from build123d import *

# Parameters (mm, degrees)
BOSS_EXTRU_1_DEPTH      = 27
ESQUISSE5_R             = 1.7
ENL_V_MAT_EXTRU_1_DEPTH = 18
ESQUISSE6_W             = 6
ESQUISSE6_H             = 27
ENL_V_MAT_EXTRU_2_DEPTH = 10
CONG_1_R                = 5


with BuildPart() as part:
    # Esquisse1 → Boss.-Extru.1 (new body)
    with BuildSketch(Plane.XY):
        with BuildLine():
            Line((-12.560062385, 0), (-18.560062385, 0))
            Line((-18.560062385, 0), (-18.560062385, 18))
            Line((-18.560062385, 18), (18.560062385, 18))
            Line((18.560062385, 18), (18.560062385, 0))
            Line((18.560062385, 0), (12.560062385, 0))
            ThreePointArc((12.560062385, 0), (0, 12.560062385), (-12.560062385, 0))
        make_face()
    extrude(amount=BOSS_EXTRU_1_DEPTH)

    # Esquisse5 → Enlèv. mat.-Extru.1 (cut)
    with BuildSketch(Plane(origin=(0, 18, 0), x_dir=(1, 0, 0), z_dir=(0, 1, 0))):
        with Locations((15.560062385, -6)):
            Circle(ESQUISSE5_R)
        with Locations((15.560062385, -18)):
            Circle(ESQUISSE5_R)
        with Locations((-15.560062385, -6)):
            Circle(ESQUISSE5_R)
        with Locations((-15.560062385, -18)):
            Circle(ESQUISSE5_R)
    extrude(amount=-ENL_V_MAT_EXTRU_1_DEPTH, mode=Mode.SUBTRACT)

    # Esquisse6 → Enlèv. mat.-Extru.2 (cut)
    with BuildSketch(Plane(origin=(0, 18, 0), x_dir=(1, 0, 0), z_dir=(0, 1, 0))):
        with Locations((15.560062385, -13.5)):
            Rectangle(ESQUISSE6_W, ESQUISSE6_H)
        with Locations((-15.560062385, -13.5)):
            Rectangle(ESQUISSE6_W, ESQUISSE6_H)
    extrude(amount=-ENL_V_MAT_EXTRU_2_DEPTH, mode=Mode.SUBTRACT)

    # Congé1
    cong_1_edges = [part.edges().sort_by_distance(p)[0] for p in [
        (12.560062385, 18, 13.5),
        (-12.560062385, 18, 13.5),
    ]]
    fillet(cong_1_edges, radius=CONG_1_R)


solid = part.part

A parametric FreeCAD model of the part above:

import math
import FreeCAD as App
import Part
import Sketcher
from FreeCAD import Vector


def edges_at(feature, points):
    """Names of the edges that pass closest to the given points."""
    edges = feature.Shape.Edges
    near = lambda p: min(range(len(edges)), key=lambda i: edges[i].distToShape(Part.Vertex(*p))[0])
    return sorted({f"Edge{near(p) + 1}" for p in points})

doc = App.newDocument("Part")
body = doc.addObject("PartDesign::Body", "Body")

# Sketch on XY plane
sketch1 = body.newObject("Sketcher::SketchObject", "Sketch")
sketch1.AttachmentSupport = (doc.getObject("XY_Plane"), [""])
sketch1.MapMode = "FlatFace"
sketch1.addGeometry([
    Part.LineSegment(Vector(-18.560062, 0, 0), Vector(-12.560062, 0, 0)),  # 0
    Part.ArcOfCircle(Part.Circle(Vector(0, 0, 0), Vector(0, 0, 1), 12.560062), math.radians(0), math.radians(180)),  # 1
    Part.LineSegment(Vector(12.560062, 0, 0), Vector(18.560062, 0, 0)),  # 2
    Part.LineSegment(Vector(18.560062, 0, 0), Vector(18.560062, 18, 0)),  # 3
    Part.LineSegment(Vector(18.560062, 18, 0), Vector(-18.560062, 18, 0)),  # 4
    Part.LineSegment(Vector(-18.560062, 18, 0), Vector(-18.560062, 0, 0)),  # 5
], False)
sketch1.addConstraint([
    Sketcher.Constraint("Coincident", 0, 2, 1, 2),
    Sketcher.Constraint("Coincident", 1, 1, 2, 1),
    Sketcher.Constraint("Coincident", 2, 2, 3, 1),
    Sketcher.Constraint("Coincident", 3, 2, 4, 1),
    Sketcher.Constraint("Coincident", 4, 2, 5, 1),
    Sketcher.Constraint("Coincident", 5, 2, 0, 1),
    Sketcher.Constraint("Horizontal", 0),
    Sketcher.Constraint("Horizontal", 2),
    Sketcher.Constraint("Vertical", 3),
    Sketcher.Constraint("Horizontal", 4),
    Sketcher.Constraint("Vertical", 5),
    Sketcher.Constraint("Coincident", 1, 3, -1, 1),
    Sketcher.Constraint("Symmetric", 2, 2, 5, 2, -1, 1),
    Sketcher.Constraint("PointOnObject", 0, 2, -1),
    Sketcher.Constraint("DistanceX", 0, 1, 0, 2, 6.0),
    Sketcher.Constraint("DistanceY", 3, 1, 3, 2, 18.0),
    Sketcher.Constraint("Radius", 1, 12.560062),
])
pad1 = body.newObject("PartDesign::Pad", "Pad")
pad1.Profile = sketch1
pad1.Length = 27

# Sketch on XZ plane
sketch2 = body.newObject("Sketcher::SketchObject", "Sketch001")
sketch2.AttachmentSupport = (doc.getObject("XZ_Plane"), [""])
sketch2.MapMode = "FlatFace"
sketch2.AttachmentOffset = App.Placement(Vector(0, 0, -18), App.Rotation())
sketch2.addGeometry([
    Part.Circle(Vector(15.560062, 6, 0), Vector(0, 0, 1), 1.7),
    Part.Circle(Vector(15.560062, 18, 0), Vector(0, 0, 1), 1.7),
    Part.Circle(Vector(-15.560062, 6, 0), Vector(0, 0, 1), 1.7),
    Part.Circle(Vector(-15.560062, 18, 0), Vector(0, 0, 1), 1.7),
], False)
sketch2.addConstraint([
    Sketcher.Constraint("Equal", 0, 1),
    Sketcher.Constraint("Equal", 1, 2),
    Sketcher.Constraint("Equal", 2, 3),
    Sketcher.Constraint("Symmetric", 0, 3, 2, 3, -2),
    Sketcher.Constraint("Symmetric", 1, 3, 3, 3, -2),
    Sketcher.Constraint("Vertical", 0, 3, 1, 3),
    Sketcher.Constraint("Diameter", 0, 3.4),
    Sketcher.Constraint("DistanceY", -1, 1, 0, 3, 6.0),
    Sketcher.Constraint("DistanceY", -1, 1, 1, 3, 18.0),
    Sketcher.Constraint("DistanceX", -1, 1, 0, 3, 15.560062),
])
pocket1 = body.newObject("PartDesign::Pocket", "Pocket")
pocket1.Profile = sketch2
pocket1.Length = 18
pocket1.Reversed = True

# Sketch on XZ plane
sketch3 = body.newObject("Sketcher::SketchObject", "Sketch002")
sketch3.AttachmentSupport = (doc.getObject("XZ_Plane"), [""])
sketch3.MapMode = "FlatFace"
sketch3.AttachmentOffset = App.Placement(Vector(0, 0, -18), App.Rotation())
sketch3.addGeometry([
    Part.LineSegment(Vector(12.560062, 0, 0), Vector(12.560062, 27, 0)),  # 0
    Part.LineSegment(Vector(12.560062, 27, 0), Vector(18.560062, 27, 0)),  # 1
    Part.LineSegment(Vector(18.560062, 27, 0), Vector(18.560062, 0, 0)),  # 2
    Part.LineSegment(Vector(18.560062, 0, 0), Vector(12.560062, 0, 0)),  # 3
    Part.LineSegment(Vector(-18.560062, 0, 0), Vector(-18.560062, 27, 0)),  # 4
    Part.LineSegment(Vector(-18.560062, 27, 0), Vector(-12.560062, 27, 0)),  # 5
    Part.LineSegment(Vector(-12.560062, 27, 0), Vector(-12.560062, 0, 0)),  # 6
    Part.LineSegment(Vector(-12.560062, 0, 0), Vector(-18.560062, 0, 0)),  # 7
], False)
sketch3.addConstraint([
    Sketcher.Constraint("Coincident", 0, 2, 1, 1),
    Sketcher.Constraint("Coincident", 1, 2, 2, 1),
    Sketcher.Constraint("Coincident", 2, 2, 3, 1),
    Sketcher.Constraint("Coincident", 3, 2, 0, 1),
    Sketcher.Constraint("Coincident", 4, 2, 5, 1),
    Sketcher.Constraint("Coincident", 5, 2, 6, 1),
    Sketcher.Constraint("Coincident", 6, 2, 7, 1),
    Sketcher.Constraint("Coincident", 7, 2, 4, 1),
    Sketcher.Constraint("Vertical", 0),
    Sketcher.Constraint("Horizontal", 1),
    Sketcher.Constraint("Vertical", 2),
    Sketcher.Constraint("Horizontal", 3),
    Sketcher.Constraint("Vertical", 4),
    Sketcher.Constraint("Horizontal", 5),
    Sketcher.Constraint("Vertical", 6),
    Sketcher.Constraint("Horizontal", 7),
    Sketcher.Constraint("Symmetric", 3, 2, 6, 2, -1, 1),
    Sketcher.Constraint("Symmetric", 1, 2, 4, 2, -2),
    Sketcher.Constraint("PointOnObject", 2, 2, -1),
    Sketcher.Constraint("DistanceX", 1, 1, 1, 2, 6.0),
    Sketcher.Constraint("DistanceY", 0, 1, 0, 2, 27.0),
    Sketcher.Constraint("DistanceX", -1, 1, 0, 2, 12.560062),
])
pocket2 = body.newObject("PartDesign::Pocket", "Pocket001")
pocket2.Profile = sketch3
pocket2.Length = 10
pocket2.Reversed = True
doc.recompute()

fillet = body.newObject("PartDesign::Fillet", "Fillet")
fillet.Base = (pocket2, edges_at(pocket2, [(12.56, 18, 13.5), (-12.56, 18, 13.5)]))
fillet.Radius = 5

doc.recompute()
